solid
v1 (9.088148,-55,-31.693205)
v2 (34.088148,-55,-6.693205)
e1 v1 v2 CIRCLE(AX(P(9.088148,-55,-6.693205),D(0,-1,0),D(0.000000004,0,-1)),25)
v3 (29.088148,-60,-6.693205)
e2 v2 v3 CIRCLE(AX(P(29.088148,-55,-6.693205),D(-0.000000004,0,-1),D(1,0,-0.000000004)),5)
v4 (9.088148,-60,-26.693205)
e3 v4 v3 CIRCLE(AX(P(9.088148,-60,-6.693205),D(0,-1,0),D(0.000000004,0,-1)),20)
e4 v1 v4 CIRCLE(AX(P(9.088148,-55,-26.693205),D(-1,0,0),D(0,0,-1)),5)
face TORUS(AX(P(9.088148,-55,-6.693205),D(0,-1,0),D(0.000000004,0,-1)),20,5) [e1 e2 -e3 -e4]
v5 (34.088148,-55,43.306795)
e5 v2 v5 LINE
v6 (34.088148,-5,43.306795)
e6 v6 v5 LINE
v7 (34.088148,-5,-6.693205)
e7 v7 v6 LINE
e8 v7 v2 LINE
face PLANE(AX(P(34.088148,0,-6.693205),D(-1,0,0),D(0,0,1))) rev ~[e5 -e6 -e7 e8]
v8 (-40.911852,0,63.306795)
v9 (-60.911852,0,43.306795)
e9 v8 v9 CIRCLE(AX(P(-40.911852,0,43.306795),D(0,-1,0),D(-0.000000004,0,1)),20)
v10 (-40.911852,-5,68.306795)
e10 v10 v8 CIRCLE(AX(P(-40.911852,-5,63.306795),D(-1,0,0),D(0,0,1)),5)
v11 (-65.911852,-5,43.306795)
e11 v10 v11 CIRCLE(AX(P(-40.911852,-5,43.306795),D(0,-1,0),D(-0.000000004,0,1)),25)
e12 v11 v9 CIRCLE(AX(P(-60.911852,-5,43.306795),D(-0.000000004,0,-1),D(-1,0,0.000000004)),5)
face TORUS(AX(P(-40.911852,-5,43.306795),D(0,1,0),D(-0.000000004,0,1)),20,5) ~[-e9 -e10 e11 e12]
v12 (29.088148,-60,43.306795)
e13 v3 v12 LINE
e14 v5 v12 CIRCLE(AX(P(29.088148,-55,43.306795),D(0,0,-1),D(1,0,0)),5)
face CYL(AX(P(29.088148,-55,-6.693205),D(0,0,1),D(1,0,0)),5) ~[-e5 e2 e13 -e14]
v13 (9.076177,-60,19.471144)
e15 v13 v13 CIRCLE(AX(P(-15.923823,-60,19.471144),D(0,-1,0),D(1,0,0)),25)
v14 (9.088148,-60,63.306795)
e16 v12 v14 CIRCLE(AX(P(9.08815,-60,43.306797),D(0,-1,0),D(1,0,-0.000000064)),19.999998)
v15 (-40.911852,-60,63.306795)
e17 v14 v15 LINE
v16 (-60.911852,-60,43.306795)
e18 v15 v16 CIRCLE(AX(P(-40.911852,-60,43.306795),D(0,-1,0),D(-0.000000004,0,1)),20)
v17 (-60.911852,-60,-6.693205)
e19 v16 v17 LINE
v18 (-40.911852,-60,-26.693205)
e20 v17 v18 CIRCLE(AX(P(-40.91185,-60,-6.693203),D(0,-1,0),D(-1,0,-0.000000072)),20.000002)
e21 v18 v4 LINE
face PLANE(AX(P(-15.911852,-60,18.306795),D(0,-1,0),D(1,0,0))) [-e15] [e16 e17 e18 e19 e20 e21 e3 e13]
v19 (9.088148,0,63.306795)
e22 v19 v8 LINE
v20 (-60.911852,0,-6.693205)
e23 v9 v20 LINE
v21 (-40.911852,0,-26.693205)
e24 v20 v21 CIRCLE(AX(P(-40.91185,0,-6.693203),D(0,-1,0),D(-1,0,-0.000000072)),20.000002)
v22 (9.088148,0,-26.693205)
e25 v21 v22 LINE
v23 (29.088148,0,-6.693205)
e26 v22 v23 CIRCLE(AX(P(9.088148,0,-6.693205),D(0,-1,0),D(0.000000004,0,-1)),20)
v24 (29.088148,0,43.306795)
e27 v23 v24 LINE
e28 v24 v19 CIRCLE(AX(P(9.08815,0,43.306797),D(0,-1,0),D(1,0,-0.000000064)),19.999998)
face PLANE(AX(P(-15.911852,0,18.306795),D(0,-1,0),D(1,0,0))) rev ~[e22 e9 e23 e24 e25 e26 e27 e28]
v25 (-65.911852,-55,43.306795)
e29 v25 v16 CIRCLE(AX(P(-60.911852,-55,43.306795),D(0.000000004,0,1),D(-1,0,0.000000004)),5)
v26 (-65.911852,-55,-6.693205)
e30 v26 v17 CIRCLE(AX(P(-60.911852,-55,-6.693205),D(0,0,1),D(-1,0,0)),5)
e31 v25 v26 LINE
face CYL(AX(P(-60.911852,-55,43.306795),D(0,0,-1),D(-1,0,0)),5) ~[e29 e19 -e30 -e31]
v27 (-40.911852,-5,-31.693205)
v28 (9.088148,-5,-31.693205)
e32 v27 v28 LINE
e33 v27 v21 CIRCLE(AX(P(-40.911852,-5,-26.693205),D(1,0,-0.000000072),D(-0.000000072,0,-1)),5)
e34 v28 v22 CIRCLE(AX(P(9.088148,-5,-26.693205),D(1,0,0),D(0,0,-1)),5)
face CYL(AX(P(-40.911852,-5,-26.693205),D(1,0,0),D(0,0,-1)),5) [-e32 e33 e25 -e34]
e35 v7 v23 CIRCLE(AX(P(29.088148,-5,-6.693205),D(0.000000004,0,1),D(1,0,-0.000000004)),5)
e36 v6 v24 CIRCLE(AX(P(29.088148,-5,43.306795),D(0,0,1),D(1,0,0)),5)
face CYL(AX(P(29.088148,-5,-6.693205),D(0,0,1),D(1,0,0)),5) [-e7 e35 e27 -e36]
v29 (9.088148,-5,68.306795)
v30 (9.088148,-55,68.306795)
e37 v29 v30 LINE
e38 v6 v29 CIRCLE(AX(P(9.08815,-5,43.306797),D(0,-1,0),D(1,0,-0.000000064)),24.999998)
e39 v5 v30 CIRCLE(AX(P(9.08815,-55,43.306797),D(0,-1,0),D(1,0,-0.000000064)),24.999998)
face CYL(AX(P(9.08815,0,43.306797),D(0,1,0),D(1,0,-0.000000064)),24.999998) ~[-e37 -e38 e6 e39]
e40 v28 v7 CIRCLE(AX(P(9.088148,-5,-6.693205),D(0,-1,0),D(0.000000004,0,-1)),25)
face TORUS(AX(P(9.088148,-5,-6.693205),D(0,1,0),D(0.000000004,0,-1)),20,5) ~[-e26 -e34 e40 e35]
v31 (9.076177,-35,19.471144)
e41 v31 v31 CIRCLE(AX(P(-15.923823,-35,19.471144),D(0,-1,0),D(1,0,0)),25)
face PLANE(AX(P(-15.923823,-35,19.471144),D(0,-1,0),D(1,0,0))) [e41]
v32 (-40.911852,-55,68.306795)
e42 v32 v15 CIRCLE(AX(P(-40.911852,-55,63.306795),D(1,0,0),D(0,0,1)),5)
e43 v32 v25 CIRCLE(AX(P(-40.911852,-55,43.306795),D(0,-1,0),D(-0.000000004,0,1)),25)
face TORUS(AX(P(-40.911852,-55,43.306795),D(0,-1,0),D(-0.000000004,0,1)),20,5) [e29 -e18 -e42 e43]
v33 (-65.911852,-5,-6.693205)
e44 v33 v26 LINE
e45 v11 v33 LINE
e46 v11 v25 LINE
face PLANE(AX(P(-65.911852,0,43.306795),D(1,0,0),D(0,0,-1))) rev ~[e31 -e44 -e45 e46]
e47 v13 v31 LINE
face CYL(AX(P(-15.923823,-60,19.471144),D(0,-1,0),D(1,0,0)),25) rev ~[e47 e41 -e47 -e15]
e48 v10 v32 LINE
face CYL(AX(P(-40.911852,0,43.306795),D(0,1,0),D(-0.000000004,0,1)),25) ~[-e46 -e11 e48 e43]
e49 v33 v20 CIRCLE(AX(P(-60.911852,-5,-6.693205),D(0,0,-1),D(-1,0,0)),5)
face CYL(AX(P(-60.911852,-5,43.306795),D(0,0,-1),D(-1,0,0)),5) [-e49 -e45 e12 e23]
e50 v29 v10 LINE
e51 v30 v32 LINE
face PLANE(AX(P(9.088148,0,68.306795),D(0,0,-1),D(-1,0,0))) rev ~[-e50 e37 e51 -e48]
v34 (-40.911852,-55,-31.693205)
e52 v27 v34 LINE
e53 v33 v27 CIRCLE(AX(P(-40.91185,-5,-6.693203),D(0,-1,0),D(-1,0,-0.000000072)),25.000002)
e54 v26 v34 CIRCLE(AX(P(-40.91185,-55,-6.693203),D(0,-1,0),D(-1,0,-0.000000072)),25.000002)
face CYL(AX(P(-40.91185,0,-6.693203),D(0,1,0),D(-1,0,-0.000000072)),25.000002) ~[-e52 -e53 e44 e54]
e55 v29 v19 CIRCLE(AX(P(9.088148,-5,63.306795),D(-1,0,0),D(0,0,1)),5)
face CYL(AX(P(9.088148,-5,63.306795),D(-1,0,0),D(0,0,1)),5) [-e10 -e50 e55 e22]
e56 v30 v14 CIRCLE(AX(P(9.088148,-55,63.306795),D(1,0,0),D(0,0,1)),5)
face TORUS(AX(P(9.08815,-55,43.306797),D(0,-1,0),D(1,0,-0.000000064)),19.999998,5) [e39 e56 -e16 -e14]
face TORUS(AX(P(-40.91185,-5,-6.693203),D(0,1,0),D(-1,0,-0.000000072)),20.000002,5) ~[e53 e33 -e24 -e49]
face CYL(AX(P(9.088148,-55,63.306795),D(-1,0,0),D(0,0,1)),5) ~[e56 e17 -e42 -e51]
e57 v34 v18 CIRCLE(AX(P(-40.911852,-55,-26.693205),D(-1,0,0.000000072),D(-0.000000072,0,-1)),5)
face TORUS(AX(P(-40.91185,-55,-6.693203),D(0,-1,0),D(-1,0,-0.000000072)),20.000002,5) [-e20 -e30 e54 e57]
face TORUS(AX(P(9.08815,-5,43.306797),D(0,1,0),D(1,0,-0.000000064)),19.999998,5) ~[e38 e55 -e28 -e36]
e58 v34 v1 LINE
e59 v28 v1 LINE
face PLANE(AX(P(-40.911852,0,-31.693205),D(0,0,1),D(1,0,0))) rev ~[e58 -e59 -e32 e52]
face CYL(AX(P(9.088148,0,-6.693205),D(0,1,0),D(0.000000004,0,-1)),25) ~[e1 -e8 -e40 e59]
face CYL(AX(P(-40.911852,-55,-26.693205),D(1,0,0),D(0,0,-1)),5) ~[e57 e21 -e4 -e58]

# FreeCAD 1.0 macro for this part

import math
import FreeCAD as App
import Part
import Sketcher


def edges_at(feature, points):
    """Names of the edges that pass closest to the given points."""
    edges = feature.Shape.Edges
    near = lambda p: min(range(len(edges)), key=lambda i: edges[i].distToShape(Part.Vertex(*p))[0])
    return sorted({f"Edge{near(p) + 1}" for p in points})

doc = App.newDocument("Part")
body = doc.addObject("PartDesign::Body", "Body")

sketch1 = body.newObject("Sketcher::SketchObject", "Sketch")
sketch1.AttachmentSupport = (doc.getObject("XZ_Plane"), [""])
sketch1.MapMode = "FlatFace"
sketch1.addGeometry([
    Part.LineSegment(App.Vector(9, 68, 0), App.Vector(-41, 68, 0)),
    Part.ArcOfCircle(Part.Circle(App.Vector(-41, 43, 0), App.Vector(0, 0, 1), 25), math.radians(90), math.radians(180)),
    Part.LineSegment(App.Vector(-66, 43, 0), App.Vector(-66, -7, 0)),
    Part.ArcOfCircle(Part.Circle(App.Vector(-41, -7, 0), App.Vector(0, 0, 1), 25), math.radians(-180), math.radians(-90)),
    Part.LineSegment(App.Vector(-41, -32, 0), App.Vector(9, -32, 0)),
    Part.ArcOfCircle(Part.Circle(App.Vector(9, -7, 0), App.Vector(0, 0, 1), 25), math.radians(-90), math.radians(0)),
    Part.LineSegment(App.Vector(34, -7, 0), App.Vector(34, 43, 0)),
    Part.ArcOfCircle(Part.Circle(App.Vector(9, 43, 0), App.Vector(0, 0, 1), 25), math.radians(0), math.radians(90)),
], False)
sketch1.addConstraint([
    Sketcher.Constraint("Tangent", 0, 2, 1, 1),
    Sketcher.Constraint("Tangent", 1, 2, 2, 1),
    Sketcher.Constraint("Tangent", 2, 2, 3, 1),
    Sketcher.Constraint("Tangent", 3, 2, 4, 1),
    Sketcher.Constraint("Tangent", 4, 2, 5, 1),
    Sketcher.Constraint("Tangent", 5, 2, 6, 1),
    Sketcher.Constraint("Tangent", 6, 2, 7, 1),
    Sketcher.Constraint("Tangent", 7, 2, 0, 1),
    Sketcher.Constraint("Horizontal", 0),
    Sketcher.Constraint("Vertical", 2),
    Sketcher.Constraint("Horizontal", 4),
    Sketcher.Constraint("Vertical", 6),
    Sketcher.Constraint("Equal", 1, 3),
    Sketcher.Constraint("Equal", 3, 5),
    Sketcher.Constraint("Equal", 5, 7),
    Sketcher.Constraint("Equal", 4, 2),
    Sketcher.Constraint("Radius", 1, 25.0),
    Sketcher.Constraint("DistanceX", 0, 2, 0, 1, 50.0),
    Sketcher.Constraint("DistanceX", 1, 3, -1, 1, 40.911852),
    Sketcher.Constraint("DistanceY", -1, 1, 1, 3, 43.306795),
])
pad1 = body.newObject("PartDesign::Pad", "Pad")
pad1.Profile = sketch1
pad1.Length = 60
doc.recompute()

fillet = body.newObject("PartDesign::Fillet", "Fillet")
fillet.Base = (pad1, edges_at(pad1, [
    (-15.912, -60, 68.307),
    (-58.59, -60, 60.984),
    (-65.912, -60, 18.307),
    (-58.59, -60, -24.371),
    (-15.912, -60, -31.693),
    (26.766, -60, -24.371),
    (34.088, -60, 18.307),
    (26.766, -60, 60.984),
    (-15.912, 0, 68.307),
    (-58.59, 0, 60.984),
    (-65.912, 0, 18.307),
    (-58.59, 0, -24.371),
    (-15.912, 0, -31.693),
    (26.766, 0, -24.371),
    (34.088, 0, 18.307),
    (26.766, 0, 60.984),
]))
fillet.Radius = 5

sketch2 = body.newObject("Sketcher::SketchObject", "Sketch001")
sketch2.AttachmentSupport = (doc.getObject("XZ_Plane"), [""])
sketch2.MapMode = "FlatFace"
sketch2.AttachmentOffset = App.Placement(App.Vector(0, 0, 60), App.Rotation())
sketch2.addGeometry(Part.Circle(App.Vector(-16, 19, 0), App.Vector(0, 0, 1), 25), False)
sketch2.addConstraint([
    Sketcher.Constraint("Diameter", 0, 50.0),
    Sketcher.Constraint("DistanceX", 0, 3, -1, 1, 15.923823),
    Sketcher.Constraint("DistanceY", -1, 1, 0, 3, 19.471144),
])
pocket1 = body.newObject("PartDesign::Pocket", "Pocket")
pocket1.Profile = sketch2
pocket1.Length = 25

doc.recompute()
